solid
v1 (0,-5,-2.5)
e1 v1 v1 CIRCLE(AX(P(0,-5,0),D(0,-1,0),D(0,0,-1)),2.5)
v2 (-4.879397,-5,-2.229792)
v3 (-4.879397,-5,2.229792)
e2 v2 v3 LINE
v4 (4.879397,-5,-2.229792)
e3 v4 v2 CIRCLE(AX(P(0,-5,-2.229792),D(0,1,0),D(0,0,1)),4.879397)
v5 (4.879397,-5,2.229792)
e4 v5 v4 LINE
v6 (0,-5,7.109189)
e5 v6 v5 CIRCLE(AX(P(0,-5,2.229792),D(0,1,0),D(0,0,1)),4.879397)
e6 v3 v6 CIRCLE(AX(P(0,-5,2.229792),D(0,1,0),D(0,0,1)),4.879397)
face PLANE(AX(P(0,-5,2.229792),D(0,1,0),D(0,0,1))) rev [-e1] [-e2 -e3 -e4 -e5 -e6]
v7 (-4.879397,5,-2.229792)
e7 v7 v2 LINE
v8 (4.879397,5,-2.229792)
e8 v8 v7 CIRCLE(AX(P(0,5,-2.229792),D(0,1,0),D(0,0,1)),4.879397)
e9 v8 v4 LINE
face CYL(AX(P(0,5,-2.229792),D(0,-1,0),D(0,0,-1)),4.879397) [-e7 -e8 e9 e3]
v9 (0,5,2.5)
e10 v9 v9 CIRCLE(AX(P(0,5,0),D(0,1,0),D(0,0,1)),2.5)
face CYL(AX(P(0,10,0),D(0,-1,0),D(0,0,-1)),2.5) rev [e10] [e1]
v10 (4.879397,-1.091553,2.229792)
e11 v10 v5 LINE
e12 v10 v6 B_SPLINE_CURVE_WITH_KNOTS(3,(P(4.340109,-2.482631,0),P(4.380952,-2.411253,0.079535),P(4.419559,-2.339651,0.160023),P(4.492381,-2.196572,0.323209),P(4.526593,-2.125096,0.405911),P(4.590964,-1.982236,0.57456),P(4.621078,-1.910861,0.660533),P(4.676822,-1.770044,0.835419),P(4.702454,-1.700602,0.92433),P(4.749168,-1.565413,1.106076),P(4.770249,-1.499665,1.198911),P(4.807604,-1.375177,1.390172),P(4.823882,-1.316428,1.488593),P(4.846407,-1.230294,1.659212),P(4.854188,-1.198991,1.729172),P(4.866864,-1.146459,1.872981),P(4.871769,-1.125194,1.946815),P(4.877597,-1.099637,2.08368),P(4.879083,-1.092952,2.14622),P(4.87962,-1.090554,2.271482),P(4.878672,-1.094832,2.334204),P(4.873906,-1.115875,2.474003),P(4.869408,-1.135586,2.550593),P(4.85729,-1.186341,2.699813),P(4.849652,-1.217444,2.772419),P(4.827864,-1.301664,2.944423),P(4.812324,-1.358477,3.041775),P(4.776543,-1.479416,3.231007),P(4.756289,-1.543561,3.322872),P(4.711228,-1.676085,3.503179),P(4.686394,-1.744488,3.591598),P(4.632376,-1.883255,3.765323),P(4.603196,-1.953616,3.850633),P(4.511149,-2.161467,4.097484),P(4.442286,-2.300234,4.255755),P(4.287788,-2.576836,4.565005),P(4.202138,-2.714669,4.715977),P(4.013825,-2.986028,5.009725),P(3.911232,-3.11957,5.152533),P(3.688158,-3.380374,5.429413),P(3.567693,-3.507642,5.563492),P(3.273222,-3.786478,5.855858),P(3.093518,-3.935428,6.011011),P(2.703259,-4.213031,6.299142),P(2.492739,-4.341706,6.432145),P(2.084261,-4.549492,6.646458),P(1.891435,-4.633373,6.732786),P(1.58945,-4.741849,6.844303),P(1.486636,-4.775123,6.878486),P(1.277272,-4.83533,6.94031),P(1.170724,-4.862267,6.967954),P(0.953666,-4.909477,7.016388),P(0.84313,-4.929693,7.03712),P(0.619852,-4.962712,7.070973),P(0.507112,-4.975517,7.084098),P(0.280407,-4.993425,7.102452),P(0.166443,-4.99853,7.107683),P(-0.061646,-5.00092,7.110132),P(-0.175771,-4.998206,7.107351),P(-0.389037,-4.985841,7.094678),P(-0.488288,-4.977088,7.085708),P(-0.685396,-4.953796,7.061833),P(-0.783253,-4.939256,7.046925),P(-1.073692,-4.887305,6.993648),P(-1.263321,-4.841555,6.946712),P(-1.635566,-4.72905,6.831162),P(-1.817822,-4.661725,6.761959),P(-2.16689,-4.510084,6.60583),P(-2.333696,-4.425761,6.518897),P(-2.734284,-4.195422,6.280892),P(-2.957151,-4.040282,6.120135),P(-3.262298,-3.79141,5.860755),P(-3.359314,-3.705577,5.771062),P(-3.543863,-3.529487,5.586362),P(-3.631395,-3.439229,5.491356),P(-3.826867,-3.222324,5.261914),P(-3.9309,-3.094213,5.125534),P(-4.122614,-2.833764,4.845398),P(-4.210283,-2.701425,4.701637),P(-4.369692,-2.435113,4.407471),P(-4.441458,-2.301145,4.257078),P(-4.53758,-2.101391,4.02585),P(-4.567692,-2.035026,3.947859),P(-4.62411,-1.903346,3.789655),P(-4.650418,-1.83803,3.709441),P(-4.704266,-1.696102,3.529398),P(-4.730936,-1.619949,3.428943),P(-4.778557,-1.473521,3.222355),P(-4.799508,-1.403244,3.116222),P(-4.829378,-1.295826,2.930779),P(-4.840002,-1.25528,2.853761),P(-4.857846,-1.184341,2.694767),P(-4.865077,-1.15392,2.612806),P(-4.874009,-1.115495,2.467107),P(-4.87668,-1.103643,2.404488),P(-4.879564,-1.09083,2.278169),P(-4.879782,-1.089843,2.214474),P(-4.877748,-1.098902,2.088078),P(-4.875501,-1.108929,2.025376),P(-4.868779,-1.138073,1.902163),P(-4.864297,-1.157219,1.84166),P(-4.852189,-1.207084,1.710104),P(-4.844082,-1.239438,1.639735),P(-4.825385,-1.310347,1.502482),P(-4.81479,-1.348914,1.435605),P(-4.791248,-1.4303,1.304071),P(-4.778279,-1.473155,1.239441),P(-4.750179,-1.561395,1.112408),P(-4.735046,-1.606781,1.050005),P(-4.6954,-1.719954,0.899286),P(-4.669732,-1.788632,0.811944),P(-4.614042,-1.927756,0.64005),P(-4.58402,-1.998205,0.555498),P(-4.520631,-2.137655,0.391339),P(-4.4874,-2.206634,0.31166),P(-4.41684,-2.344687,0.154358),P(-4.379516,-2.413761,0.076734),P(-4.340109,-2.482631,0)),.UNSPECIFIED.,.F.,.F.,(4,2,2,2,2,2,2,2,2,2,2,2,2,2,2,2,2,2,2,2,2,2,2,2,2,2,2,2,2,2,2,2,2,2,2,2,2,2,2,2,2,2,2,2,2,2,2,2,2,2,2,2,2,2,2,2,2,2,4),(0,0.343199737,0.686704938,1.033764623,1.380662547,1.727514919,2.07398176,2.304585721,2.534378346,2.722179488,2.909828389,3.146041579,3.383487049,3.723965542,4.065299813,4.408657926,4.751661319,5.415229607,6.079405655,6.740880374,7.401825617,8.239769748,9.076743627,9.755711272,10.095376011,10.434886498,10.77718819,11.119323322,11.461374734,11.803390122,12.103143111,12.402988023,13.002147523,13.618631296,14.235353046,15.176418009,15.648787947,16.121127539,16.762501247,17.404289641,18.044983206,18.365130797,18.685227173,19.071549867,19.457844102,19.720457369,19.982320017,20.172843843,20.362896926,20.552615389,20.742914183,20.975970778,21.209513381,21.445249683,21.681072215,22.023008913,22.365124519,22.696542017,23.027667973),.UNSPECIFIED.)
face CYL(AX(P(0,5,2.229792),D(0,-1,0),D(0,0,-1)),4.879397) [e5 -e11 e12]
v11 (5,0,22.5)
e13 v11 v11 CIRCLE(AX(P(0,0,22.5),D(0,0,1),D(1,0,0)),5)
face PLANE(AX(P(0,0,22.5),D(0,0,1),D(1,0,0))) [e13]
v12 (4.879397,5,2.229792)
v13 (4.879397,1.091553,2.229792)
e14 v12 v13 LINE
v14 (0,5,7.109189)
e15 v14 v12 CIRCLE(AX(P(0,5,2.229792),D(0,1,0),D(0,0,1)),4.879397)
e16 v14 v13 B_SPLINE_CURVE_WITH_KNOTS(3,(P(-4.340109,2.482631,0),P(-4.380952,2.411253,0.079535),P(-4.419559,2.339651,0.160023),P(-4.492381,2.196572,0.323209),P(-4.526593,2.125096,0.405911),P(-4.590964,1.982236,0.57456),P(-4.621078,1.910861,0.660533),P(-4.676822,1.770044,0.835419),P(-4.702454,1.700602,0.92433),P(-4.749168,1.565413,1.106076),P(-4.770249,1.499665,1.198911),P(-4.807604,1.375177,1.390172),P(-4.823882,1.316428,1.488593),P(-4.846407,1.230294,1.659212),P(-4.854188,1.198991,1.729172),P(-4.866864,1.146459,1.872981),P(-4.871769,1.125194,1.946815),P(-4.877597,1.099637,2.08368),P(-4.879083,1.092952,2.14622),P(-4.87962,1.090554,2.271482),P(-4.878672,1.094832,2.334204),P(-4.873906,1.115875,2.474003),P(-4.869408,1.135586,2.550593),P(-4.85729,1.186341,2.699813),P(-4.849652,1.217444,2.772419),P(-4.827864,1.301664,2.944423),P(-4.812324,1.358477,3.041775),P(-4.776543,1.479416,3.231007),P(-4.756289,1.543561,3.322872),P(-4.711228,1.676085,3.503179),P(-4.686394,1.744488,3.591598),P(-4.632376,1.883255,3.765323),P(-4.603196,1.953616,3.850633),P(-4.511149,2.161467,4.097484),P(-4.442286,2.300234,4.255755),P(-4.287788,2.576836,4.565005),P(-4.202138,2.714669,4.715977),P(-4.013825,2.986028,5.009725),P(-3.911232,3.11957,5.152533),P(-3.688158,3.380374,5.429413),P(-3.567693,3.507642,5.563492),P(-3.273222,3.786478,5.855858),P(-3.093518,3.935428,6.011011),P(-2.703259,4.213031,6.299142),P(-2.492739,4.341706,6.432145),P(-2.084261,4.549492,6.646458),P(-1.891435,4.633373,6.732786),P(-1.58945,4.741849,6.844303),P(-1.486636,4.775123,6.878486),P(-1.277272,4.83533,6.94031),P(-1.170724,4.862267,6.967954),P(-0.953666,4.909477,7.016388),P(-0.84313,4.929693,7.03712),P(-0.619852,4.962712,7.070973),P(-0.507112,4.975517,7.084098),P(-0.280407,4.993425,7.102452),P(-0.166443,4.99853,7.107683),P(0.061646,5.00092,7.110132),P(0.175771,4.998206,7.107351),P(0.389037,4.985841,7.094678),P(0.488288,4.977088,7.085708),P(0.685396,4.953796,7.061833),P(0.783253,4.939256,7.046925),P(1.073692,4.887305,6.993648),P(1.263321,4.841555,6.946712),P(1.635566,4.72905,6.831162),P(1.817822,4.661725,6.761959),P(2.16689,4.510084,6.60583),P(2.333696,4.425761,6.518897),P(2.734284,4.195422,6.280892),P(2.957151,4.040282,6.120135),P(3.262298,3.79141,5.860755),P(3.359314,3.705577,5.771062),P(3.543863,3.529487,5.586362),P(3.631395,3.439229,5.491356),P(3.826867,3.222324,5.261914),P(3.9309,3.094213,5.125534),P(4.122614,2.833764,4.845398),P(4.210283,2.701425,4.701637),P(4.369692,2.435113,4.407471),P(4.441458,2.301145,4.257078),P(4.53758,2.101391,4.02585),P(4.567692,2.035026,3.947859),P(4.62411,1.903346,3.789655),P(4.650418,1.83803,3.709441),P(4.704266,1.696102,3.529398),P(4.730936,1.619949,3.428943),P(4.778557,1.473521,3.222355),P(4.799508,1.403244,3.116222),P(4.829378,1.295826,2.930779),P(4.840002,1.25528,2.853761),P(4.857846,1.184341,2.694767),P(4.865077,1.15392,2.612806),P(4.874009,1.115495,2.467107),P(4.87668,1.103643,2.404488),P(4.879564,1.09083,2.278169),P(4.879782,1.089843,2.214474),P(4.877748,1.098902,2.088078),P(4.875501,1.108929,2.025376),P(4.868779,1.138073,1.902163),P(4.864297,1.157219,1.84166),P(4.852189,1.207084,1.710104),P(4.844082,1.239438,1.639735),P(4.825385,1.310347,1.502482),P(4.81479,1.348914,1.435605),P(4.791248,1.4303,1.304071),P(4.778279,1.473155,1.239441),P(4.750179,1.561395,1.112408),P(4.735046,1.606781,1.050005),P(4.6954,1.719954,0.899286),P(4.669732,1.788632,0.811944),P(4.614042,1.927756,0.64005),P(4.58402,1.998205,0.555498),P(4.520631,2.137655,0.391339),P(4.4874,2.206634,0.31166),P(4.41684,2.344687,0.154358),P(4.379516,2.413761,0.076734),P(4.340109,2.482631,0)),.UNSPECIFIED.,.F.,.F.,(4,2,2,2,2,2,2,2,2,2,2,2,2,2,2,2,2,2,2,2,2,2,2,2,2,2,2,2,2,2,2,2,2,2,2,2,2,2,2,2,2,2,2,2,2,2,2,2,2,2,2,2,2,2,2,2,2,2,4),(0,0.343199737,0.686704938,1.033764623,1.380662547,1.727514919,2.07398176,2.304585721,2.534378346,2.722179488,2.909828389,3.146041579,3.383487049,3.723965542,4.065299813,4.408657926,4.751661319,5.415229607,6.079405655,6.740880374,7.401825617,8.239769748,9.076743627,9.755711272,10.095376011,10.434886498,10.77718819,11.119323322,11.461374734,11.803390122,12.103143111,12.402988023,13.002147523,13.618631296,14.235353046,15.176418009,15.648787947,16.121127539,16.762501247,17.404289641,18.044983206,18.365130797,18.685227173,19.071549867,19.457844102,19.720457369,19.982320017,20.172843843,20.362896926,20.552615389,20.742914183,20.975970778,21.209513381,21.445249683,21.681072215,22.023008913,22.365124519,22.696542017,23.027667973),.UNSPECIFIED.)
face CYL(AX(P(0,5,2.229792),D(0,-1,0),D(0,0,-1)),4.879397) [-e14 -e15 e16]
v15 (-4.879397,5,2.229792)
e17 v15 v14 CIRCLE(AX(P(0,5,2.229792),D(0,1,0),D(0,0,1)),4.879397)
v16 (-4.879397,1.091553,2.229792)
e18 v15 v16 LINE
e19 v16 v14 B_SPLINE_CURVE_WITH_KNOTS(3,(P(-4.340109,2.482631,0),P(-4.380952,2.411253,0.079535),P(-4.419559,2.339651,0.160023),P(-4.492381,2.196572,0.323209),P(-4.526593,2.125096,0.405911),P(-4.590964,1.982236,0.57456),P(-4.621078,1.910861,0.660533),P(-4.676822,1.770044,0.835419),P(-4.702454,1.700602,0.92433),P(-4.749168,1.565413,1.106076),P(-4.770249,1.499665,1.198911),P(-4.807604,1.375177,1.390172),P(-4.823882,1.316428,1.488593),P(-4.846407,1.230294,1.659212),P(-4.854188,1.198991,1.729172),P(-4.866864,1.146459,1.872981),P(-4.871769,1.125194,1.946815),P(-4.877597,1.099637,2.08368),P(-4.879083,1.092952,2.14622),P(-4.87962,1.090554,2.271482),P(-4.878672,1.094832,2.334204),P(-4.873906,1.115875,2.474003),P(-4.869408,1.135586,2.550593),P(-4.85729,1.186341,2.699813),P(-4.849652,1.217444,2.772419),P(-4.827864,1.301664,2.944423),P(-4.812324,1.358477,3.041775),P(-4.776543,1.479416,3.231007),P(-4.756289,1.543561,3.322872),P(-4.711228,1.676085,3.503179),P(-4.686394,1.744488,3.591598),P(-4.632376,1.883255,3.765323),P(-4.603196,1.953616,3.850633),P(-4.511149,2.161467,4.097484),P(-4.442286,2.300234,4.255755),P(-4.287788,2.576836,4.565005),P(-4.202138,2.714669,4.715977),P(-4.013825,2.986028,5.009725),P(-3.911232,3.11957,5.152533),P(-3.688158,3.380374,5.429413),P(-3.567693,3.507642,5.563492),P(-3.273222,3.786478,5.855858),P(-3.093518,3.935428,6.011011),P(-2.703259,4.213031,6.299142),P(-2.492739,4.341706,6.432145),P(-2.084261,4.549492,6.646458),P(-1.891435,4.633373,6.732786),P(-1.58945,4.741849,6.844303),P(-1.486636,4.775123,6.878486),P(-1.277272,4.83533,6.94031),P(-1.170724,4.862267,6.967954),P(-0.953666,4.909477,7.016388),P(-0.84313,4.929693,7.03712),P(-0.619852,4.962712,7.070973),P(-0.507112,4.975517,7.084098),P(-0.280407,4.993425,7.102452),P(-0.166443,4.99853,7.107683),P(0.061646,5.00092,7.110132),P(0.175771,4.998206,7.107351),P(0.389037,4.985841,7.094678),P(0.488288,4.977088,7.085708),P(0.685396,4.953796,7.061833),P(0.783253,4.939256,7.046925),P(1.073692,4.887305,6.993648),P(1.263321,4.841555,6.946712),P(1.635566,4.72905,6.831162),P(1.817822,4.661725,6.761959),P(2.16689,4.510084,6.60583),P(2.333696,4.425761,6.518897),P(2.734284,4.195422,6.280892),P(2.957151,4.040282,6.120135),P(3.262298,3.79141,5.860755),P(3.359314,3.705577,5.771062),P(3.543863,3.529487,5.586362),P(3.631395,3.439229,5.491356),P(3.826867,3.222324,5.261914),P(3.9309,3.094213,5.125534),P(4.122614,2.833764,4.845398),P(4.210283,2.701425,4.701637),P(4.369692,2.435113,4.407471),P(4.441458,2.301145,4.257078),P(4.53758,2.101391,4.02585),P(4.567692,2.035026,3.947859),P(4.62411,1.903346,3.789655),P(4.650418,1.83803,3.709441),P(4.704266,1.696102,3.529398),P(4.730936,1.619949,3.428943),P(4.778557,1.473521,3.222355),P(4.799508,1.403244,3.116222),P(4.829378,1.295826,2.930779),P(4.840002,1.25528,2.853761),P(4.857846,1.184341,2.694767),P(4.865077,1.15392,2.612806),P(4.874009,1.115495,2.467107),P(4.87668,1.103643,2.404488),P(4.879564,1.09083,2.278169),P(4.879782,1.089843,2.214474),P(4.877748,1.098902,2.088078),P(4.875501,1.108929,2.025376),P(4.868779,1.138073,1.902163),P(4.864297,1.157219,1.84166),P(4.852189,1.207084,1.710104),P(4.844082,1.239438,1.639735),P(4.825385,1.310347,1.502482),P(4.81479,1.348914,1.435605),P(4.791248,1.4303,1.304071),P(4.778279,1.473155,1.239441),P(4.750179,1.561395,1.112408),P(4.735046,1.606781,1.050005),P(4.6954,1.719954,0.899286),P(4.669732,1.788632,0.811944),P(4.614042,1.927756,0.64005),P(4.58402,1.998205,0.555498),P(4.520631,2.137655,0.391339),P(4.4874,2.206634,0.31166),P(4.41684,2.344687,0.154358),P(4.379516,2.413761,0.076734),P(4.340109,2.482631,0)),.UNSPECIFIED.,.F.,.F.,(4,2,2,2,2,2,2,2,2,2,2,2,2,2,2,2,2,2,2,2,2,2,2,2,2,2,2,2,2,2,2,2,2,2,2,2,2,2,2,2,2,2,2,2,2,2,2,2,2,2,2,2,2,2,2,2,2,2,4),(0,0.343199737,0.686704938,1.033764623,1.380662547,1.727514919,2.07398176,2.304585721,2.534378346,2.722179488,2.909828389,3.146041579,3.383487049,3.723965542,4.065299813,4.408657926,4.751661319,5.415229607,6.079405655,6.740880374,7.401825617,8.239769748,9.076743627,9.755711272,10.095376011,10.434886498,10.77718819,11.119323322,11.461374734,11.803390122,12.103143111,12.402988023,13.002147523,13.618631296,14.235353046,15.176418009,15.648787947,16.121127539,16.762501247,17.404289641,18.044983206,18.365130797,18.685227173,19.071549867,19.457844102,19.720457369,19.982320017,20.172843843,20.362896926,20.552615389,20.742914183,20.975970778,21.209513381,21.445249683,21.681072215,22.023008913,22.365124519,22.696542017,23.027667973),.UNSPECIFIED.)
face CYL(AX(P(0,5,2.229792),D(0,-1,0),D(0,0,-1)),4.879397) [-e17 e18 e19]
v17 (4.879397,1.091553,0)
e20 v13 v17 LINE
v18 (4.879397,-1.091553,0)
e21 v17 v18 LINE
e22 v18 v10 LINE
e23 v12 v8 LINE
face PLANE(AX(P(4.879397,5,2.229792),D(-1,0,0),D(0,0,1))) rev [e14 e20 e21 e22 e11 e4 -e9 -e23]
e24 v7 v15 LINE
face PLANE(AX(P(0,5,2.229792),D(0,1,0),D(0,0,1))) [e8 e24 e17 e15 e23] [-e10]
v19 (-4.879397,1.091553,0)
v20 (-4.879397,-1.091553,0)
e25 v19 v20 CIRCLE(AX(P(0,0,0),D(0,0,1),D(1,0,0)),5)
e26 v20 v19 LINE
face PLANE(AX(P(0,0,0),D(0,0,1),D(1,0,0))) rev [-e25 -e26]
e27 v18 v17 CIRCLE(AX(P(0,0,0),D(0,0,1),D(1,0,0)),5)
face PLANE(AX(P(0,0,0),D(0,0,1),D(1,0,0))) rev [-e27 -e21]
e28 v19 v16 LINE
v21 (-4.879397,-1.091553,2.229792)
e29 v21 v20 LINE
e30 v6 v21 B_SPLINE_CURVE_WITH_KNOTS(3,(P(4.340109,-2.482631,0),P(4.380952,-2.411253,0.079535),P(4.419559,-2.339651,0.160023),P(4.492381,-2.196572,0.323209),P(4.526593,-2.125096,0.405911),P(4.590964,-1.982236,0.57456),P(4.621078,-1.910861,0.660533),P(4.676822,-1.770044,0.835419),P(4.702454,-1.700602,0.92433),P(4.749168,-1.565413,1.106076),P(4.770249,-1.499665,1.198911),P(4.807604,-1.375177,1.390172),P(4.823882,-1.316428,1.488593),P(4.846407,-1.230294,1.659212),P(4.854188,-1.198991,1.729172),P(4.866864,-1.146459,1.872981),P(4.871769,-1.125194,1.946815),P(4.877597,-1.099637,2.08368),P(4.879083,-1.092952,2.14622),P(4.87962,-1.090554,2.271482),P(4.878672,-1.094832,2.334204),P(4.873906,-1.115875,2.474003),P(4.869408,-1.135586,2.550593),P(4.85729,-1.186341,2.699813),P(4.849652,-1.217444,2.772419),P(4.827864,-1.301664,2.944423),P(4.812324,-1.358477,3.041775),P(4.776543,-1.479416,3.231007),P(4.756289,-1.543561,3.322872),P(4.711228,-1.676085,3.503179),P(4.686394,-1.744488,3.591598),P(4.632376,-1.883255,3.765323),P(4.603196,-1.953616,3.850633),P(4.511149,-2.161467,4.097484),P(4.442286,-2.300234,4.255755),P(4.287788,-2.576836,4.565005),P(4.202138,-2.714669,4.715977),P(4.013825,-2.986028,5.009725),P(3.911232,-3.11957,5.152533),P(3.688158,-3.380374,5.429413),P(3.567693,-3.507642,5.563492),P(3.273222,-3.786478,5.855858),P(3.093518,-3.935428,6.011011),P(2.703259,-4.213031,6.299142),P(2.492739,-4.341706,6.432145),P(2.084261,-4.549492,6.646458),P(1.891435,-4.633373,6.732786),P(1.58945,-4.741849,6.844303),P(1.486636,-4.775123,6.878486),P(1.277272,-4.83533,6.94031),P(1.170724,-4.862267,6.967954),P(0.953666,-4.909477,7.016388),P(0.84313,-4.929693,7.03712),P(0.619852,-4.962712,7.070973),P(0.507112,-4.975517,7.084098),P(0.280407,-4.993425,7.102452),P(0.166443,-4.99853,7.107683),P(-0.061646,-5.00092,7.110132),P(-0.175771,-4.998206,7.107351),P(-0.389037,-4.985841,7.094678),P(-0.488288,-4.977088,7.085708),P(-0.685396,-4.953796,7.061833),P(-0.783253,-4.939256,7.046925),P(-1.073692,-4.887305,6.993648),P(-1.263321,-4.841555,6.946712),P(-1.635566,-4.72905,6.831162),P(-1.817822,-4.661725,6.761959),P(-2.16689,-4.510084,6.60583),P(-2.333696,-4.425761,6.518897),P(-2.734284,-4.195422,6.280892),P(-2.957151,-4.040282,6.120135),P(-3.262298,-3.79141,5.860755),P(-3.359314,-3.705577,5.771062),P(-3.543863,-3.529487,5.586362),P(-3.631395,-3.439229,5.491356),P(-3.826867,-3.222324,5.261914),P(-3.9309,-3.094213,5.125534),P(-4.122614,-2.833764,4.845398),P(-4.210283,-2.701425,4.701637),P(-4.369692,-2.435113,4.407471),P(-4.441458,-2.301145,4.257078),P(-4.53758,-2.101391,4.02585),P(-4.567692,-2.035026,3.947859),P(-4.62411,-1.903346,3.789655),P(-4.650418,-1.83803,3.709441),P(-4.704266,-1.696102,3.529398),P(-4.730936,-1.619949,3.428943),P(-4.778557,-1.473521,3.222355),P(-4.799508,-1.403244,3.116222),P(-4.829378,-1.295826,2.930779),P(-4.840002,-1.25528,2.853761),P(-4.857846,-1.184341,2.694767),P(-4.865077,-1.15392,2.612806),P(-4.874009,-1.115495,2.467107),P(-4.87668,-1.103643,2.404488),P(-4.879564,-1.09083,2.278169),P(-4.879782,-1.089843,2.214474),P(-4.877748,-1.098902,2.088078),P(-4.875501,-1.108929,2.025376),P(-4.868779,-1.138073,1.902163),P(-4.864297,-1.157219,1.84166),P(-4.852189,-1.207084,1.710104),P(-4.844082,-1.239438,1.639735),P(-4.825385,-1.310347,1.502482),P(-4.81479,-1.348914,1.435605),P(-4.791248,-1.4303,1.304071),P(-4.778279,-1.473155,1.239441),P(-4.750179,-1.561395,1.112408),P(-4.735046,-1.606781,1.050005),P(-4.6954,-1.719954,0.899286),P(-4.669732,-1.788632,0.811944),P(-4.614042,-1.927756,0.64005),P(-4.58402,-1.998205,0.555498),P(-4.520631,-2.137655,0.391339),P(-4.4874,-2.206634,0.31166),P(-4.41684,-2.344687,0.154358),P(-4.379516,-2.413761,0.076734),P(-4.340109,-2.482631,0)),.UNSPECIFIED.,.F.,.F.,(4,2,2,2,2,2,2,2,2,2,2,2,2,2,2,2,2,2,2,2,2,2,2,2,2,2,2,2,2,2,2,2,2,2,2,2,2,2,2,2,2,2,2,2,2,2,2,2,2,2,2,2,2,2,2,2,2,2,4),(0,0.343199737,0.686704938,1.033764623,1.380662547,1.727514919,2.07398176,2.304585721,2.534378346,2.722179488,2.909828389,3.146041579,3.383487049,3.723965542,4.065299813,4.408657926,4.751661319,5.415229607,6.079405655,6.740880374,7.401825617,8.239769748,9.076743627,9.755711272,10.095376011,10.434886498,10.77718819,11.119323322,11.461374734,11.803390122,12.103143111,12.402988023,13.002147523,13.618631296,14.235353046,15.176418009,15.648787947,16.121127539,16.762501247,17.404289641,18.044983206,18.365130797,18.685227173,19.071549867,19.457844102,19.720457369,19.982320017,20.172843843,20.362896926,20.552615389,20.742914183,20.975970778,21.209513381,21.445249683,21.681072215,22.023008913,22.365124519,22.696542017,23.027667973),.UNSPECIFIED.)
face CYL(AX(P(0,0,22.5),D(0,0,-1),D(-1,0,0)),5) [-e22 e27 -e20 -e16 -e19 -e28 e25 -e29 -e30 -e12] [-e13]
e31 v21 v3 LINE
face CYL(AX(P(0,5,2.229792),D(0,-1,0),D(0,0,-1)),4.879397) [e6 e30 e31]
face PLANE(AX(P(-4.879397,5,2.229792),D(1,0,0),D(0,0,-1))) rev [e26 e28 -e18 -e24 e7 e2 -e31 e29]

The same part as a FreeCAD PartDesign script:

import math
import FreeCAD as App
import Part
import Sketcher

doc = App.newDocument("Part")
body = doc.addObject("PartDesign::Body", "Body")

# Sketch on XY plane
sketch1 = doc.addObject("Sketcher::SketchObject", "Sketch")
body.addObject(sketch1)
sketch1.AttachmentSupport = (doc.XY_Plane, [""])
sketch1.MapMode = "FlatFace"
sketch1.addGeometry(Part.Circle(App.Vector(0, 0, 0), App.Vector(0, 0, 1), 5), False)
sketch1.addConstraint(Sketcher.Constraint("Coincident", 0, 3, -1, 1))
sketch1.addConstraint(Sketcher.Constraint("Diameter", 0, 10.0))
pad1 = doc.addObject("PartDesign::Pad", "Pad")
body.addObject(pad1)
pad1.Profile = sketch1
pad1.Length = 22.5

# Sketch on XZ plane
sketch2 = doc.addObject("Sketcher::SketchObject", "Sketch001")
body.addObject(sketch2)
sketch2.AttachmentSupport = (doc.XZ_Plane, [""])
sketch2.MapMode = "FlatFace"
sketch2.addGeometry(Part.LineSegment(App.Vector(-4.9, -2.2, 0), App.Vector(-4.9, 2.2, 0)), False)
sketch2.addGeometry(Part.ArcOfCircle(Part.Circle(App.Vector(0, 2.2, 0), App.Vector(0, 0, 1), 4.9), math.radians(0), math.radians(180)), False)
sketch2.addGeometry(Part.LineSegment(App.Vector(4.9, 2.2, 0), App.Vector(4.9, -2.2, 0)), False)
sketch2.addGeometry(Part.ArcOfCircle(Part.Circle(App.Vector(0, -2.2, 0), App.Vector(0, 0, 1), 4.9), math.radians(180), math.radians(360)), False)
sketch2.addConstraint(Sketcher.Constraint("Tangent", 0, 2, 1, 2))
sketch2.addConstraint(Sketcher.Constraint("Tangent", 1, 1, 2, 1))
sketch2.addConstraint(Sketcher.Constraint("Tangent", 2, 2, 3, 2))
sketch2.addConstraint(Sketcher.Constraint("Tangent", 3, 1, 0, 1))
sketch2.addConstraint(Sketcher.Constraint("Vertical", 0))
sketch2.addConstraint(Sketcher.Constraint("Vertical", 2))
sketch2.addConstraint(Sketcher.Constraint("Symmetric", 1, 3, 3, 3, -1, 1))
sketch2.addConstraint(Sketcher.Constraint("Radius", 1, 4.879397))
sketch2.addConstraint(Sketcher.Constraint("DistanceY", 0, 1, 0, 2, 4.459583))
pad2 = doc.addObject("PartDesign::Pad", "Pad001")
body.addObject(pad2)
pad2.Profile = sketch2
pad2.Length = 10
pad2.Midplane = True

# Sketch on XZ plane
sketch3 = doc.addObject("Sketcher::SketchObject", "Sketch002")
body.addObject(sketch3)
sketch3.AttachmentSupport = (doc.XZ_Plane, [""])
sketch3.MapMode = "FlatFace"
sketch3.AttachmentOffset = App.Placement(App.Vector(0, 0, 5), App.Rotation())
sketch3.addGeometry(Part.Circle(App.Vector(0, 0, 0), App.Vector(0, 0, 1), 2.5), False)
sketch3.addConstraint(Sketcher.Constraint("Coincident", 0, 3, -1, 1))
sketch3.addConstraint(Sketcher.Constraint("Diameter", 0, 5.0))
pocket1 = doc.addObject("PartDesign::Pocket", "Pocket")
body.addObject(pocket1)
pocket1.Profile = sketch3
pocket1.Length = 15

doc.recompute()
